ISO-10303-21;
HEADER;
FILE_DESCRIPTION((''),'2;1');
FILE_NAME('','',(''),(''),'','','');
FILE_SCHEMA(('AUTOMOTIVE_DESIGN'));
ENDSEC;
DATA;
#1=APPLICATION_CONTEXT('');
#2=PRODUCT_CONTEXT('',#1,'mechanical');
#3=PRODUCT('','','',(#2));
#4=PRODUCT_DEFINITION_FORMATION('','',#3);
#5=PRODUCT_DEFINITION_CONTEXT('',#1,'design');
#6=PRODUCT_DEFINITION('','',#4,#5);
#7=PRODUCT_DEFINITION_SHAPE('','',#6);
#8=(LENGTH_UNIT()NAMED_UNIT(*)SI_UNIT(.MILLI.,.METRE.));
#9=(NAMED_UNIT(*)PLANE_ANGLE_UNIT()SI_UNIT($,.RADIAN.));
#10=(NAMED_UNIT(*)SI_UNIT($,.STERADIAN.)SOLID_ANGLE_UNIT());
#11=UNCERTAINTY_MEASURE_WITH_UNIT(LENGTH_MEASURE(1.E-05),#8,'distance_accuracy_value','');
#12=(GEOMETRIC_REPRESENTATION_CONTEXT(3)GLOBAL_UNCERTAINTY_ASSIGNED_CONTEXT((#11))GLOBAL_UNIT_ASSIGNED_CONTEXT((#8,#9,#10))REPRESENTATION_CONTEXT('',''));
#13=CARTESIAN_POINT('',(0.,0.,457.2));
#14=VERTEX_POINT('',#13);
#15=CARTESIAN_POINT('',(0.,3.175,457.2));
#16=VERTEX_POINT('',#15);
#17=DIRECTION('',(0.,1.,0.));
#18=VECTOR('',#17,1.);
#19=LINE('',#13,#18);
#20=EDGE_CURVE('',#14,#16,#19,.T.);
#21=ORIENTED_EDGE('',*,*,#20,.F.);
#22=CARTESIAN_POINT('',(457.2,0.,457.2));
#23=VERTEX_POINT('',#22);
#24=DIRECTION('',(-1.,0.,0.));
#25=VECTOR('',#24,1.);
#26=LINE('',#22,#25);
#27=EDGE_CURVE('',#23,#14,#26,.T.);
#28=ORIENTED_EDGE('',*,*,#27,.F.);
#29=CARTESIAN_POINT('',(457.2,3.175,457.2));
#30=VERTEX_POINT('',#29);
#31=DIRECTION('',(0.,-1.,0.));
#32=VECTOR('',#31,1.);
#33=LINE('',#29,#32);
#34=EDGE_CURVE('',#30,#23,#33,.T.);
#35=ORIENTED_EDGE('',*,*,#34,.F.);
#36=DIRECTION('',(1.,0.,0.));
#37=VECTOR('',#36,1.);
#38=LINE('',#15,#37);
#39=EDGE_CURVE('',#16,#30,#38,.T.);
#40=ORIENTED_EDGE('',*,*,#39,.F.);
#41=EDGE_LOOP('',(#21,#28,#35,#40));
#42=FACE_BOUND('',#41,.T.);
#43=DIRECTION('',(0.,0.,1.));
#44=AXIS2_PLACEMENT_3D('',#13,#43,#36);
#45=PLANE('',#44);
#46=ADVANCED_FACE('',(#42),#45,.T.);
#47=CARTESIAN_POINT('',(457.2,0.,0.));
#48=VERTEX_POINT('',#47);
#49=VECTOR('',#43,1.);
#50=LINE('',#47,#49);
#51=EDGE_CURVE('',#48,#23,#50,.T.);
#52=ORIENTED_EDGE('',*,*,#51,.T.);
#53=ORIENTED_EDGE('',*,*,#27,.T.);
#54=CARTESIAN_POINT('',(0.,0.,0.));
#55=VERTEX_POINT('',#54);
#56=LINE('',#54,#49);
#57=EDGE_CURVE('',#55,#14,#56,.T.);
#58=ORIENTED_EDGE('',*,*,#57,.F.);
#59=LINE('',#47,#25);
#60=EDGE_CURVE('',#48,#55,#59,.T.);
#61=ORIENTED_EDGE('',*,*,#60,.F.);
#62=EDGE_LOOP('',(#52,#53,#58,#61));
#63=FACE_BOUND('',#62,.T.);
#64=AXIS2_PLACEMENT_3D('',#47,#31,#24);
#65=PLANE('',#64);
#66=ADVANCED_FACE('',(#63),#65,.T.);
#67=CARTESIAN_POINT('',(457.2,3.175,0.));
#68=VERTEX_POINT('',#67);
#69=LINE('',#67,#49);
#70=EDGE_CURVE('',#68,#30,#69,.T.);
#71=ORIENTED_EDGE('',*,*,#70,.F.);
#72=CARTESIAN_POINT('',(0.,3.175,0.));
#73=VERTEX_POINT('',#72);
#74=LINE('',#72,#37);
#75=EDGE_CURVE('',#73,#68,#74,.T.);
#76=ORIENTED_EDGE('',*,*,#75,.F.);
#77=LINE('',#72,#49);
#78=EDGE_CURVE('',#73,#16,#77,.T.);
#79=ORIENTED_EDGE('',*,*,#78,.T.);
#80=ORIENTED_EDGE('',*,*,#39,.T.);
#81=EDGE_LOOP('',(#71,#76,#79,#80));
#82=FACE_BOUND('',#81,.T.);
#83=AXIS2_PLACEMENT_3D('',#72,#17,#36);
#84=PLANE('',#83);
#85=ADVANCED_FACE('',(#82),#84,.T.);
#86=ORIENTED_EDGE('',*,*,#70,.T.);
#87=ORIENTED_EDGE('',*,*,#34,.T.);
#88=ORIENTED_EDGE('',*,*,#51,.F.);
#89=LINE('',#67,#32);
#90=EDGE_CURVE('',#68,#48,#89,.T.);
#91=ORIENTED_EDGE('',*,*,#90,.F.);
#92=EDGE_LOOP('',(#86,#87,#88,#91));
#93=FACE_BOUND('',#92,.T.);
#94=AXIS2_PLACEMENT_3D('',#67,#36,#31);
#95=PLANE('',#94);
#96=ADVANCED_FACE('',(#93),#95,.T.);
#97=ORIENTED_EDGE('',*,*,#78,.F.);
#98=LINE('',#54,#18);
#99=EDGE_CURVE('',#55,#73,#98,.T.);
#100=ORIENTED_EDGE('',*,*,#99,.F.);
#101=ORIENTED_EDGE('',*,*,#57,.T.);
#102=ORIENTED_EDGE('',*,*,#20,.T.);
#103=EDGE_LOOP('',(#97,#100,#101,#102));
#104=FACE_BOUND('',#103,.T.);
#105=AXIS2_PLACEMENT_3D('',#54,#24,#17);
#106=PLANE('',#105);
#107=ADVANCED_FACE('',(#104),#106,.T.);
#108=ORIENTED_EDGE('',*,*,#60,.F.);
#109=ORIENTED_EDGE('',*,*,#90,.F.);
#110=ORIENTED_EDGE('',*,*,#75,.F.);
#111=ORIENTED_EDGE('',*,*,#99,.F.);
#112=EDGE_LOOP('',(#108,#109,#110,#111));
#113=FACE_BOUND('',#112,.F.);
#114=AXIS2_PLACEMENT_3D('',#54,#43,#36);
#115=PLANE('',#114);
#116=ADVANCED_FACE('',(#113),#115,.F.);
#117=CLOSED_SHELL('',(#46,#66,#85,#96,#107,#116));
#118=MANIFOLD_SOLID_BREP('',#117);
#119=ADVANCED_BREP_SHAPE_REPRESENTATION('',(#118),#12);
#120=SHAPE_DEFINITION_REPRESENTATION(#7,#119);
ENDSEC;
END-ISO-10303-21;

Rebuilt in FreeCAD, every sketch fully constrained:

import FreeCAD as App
import Part
import Sketcher

V = App.Vector
Q = App.Units.Quantity

doc = App.newDocument("Part")
params = doc.addObject("Spreadsheet::Sheet", "Params")
for row, (alias, value) in enumerate([
    ("sketch1_width", "18 in"),
    ("sketch1_height", "0.125 in"),
    ("pad1_length", "18 in"),
], start=1):
    params.set(f"A{row}", alias)
    params.set(f"B{row}", "=" + value)
    params.setAlias(f"B{row}", alias)

body = doc.addObject("PartDesign::Body", "Body")

sketch1 = body.newObject("Sketcher::SketchObject", "Sketch")
sketch1.AttachmentSupport = (doc.getObject("XY_Plane"), [""])
sketch1.MapMode = "FlatFace"
sketch1.addGeometry([
    Part.LineSegment(V(0, 3.2, 0), V(0, 0, 0)),
    Part.LineSegment(V(0, 0, 0), V(457.2, 0, 0)),
    Part.LineSegment(V(457.2, 0, 0), V(457.2, 3.2, 0)),
    Part.LineSegment(V(457.2, 3.2, 0), V(0, 3.2, 0)),
], False)
sketch1.addConstraint([
    Sketcher.Constraint("Coincident", 0, 2, 1, 1),
    Sketcher.Constraint("Coincident", 1, 2, 2, 1),
    Sketcher.Constraint("Coincident", 2, 2, 3, 1),
    Sketcher.Constraint("Coincident", 3, 2, 0, 1),
    Sketcher.Constraint("Vertical", 0),
    Sketcher.Constraint("Horizontal", 1),
    Sketcher.Constraint("Vertical", 2),
    Sketcher.Constraint("Horizontal", 3),
    Sketcher.Constraint("Coincident", 0, 2, -1, 1),
    Sketcher.Constraint("DistanceX", 1, 1, 1, 2, Q("18 in")),
    Sketcher.Constraint("DistanceY", 0, 2, 0, 1, Q("0.125 in")),
])
sketch1.setExpression("Constraints[9]", "Params.sketch1_width")
sketch1.setExpression("Constraints[10]", "Params.sketch1_height")
pad1 = body.newObject("PartDesign::Pad", "Pad")
pad1.Profile = sketch1
pad1.setExpression("Length", "Params.pad1_length")

doc.recompute()
